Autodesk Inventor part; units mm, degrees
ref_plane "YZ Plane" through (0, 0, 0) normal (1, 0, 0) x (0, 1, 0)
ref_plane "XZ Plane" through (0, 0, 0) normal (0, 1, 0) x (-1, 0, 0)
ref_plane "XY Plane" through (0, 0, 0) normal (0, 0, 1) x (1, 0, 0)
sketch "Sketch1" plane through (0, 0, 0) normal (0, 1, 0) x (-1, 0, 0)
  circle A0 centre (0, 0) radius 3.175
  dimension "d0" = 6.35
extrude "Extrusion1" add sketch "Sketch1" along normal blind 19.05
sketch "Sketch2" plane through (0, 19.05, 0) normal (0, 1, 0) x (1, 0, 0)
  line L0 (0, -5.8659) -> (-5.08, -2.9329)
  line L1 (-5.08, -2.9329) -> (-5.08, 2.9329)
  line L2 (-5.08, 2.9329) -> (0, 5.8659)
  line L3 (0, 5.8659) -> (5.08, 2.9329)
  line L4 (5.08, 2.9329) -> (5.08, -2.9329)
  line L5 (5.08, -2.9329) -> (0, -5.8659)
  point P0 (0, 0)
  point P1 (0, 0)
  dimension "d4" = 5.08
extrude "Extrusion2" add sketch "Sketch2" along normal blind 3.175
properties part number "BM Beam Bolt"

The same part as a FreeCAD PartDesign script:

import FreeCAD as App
import Part
import Sketcher
from FreeCAD import Vector
Q = App.Units.Quantity

doc = App.newDocument("Part")
body = doc.addObject("PartDesign::Body", "Body")

# Sketch on XZ plane
sketch1 = body.newObject("Sketcher::SketchObject", "Sketch")
sketch1.AttachmentSupport = (doc.getObject("XZ_Plane"), [""])
sketch1.MapMode = "FlatFace"
sketch1.addGeometry(Part.Circle(Vector(0, 0, 0), Vector(0, 0, 1), 3.175), False)
sketch1.addConstraint([
    Sketcher.Constraint("Coincident", 0, 3, -1, 1),
    Sketcher.Constraint("Diameter", 0, Q("0.25 in")),
])
pad1 = body.newObject("PartDesign::Pad", "Pad")
pad1.Profile = sketch1
pad1.Length = Q("0.75 in")
pad1.Reversed = True

# Sketch on XZ plane
sketch2 = body.newObject("Sketcher::SketchObject", "Sketch001")
sketch2.AttachmentSupport = (doc.getObject("XZ_Plane"), [""])
sketch2.MapMode = "FlatFace"
sketch2.AttachmentOffset = App.Placement(Vector(0, 0, -0.75 * 25.4), App.Rotation())
sketch2.addGeometry([
    Part.LineSegment(Vector(-5.08, 2.9329, 0), Vector(0, 5.8659, 0)),  # 0
    Part.LineSegment(Vector(0, 5.8659, 0), Vector(5.08, 2.9329, 0)),  # 1
    Part.LineSegment(Vector(5.08, 2.9329, 0), Vector(5.08, -2.9329, 0)),  # 2
    Part.LineSegment(Vector(5.08, -2.9329, 0), Vector(0, -5.8659, 0)),  # 3
    Part.LineSegment(Vector(0, -5.8659, 0), Vector(-5.08, -2.9329, 0)),  # 4
    Part.LineSegment(Vector(-5.08, -2.9329, 0), Vector(-5.08, 2.9329, 0)),  # 5
], False)
sketch2.addConstraint([
    Sketcher.Constraint("Coincident", 0, 2, 1, 1),
    Sketcher.Constraint("Coincident", 1, 2, 2, 1),
    Sketcher.Constraint("Coincident", 2, 2, 3, 1),
    Sketcher.Constraint("Coincident", 3, 2, 4, 1),
    Sketcher.Constraint("Coincident", 4, 2, 5, 1),
    Sketcher.Constraint("Coincident", 5, 2, 0, 1),
    Sketcher.Constraint("Vertical", 2),
    Sketcher.Constraint("Vertical", 5),
    Sketcher.Constraint("Symmetric", 0, 2, 3, 2, -1, 1),
    Sketcher.Constraint("Symmetric", 1, 2, 4, 2, -1, 1),
    Sketcher.Constraint("PointOnObject", 0, 2, -2),
    Sketcher.Constraint("Parallel", 0, 3),
    Sketcher.Constraint("Horizontal", 2, 2, 4, 2),
    Sketcher.Constraint("DistanceX", -1, 1, 1, 2, Q("0.2 in")),
    Sketcher.Constraint("Angle", 0, Q("30.0005 deg")),
    Sketcher.Constraint("DistanceY", 2, 2, 2, 1, 5.8658),
])
pad2 = body.newObject("PartDesign::Pad", "Pad001")
pad2.Profile = sketch2
pad2.Length = Q("0.125 in")
pad2.Reversed = True

doc.recompute()
